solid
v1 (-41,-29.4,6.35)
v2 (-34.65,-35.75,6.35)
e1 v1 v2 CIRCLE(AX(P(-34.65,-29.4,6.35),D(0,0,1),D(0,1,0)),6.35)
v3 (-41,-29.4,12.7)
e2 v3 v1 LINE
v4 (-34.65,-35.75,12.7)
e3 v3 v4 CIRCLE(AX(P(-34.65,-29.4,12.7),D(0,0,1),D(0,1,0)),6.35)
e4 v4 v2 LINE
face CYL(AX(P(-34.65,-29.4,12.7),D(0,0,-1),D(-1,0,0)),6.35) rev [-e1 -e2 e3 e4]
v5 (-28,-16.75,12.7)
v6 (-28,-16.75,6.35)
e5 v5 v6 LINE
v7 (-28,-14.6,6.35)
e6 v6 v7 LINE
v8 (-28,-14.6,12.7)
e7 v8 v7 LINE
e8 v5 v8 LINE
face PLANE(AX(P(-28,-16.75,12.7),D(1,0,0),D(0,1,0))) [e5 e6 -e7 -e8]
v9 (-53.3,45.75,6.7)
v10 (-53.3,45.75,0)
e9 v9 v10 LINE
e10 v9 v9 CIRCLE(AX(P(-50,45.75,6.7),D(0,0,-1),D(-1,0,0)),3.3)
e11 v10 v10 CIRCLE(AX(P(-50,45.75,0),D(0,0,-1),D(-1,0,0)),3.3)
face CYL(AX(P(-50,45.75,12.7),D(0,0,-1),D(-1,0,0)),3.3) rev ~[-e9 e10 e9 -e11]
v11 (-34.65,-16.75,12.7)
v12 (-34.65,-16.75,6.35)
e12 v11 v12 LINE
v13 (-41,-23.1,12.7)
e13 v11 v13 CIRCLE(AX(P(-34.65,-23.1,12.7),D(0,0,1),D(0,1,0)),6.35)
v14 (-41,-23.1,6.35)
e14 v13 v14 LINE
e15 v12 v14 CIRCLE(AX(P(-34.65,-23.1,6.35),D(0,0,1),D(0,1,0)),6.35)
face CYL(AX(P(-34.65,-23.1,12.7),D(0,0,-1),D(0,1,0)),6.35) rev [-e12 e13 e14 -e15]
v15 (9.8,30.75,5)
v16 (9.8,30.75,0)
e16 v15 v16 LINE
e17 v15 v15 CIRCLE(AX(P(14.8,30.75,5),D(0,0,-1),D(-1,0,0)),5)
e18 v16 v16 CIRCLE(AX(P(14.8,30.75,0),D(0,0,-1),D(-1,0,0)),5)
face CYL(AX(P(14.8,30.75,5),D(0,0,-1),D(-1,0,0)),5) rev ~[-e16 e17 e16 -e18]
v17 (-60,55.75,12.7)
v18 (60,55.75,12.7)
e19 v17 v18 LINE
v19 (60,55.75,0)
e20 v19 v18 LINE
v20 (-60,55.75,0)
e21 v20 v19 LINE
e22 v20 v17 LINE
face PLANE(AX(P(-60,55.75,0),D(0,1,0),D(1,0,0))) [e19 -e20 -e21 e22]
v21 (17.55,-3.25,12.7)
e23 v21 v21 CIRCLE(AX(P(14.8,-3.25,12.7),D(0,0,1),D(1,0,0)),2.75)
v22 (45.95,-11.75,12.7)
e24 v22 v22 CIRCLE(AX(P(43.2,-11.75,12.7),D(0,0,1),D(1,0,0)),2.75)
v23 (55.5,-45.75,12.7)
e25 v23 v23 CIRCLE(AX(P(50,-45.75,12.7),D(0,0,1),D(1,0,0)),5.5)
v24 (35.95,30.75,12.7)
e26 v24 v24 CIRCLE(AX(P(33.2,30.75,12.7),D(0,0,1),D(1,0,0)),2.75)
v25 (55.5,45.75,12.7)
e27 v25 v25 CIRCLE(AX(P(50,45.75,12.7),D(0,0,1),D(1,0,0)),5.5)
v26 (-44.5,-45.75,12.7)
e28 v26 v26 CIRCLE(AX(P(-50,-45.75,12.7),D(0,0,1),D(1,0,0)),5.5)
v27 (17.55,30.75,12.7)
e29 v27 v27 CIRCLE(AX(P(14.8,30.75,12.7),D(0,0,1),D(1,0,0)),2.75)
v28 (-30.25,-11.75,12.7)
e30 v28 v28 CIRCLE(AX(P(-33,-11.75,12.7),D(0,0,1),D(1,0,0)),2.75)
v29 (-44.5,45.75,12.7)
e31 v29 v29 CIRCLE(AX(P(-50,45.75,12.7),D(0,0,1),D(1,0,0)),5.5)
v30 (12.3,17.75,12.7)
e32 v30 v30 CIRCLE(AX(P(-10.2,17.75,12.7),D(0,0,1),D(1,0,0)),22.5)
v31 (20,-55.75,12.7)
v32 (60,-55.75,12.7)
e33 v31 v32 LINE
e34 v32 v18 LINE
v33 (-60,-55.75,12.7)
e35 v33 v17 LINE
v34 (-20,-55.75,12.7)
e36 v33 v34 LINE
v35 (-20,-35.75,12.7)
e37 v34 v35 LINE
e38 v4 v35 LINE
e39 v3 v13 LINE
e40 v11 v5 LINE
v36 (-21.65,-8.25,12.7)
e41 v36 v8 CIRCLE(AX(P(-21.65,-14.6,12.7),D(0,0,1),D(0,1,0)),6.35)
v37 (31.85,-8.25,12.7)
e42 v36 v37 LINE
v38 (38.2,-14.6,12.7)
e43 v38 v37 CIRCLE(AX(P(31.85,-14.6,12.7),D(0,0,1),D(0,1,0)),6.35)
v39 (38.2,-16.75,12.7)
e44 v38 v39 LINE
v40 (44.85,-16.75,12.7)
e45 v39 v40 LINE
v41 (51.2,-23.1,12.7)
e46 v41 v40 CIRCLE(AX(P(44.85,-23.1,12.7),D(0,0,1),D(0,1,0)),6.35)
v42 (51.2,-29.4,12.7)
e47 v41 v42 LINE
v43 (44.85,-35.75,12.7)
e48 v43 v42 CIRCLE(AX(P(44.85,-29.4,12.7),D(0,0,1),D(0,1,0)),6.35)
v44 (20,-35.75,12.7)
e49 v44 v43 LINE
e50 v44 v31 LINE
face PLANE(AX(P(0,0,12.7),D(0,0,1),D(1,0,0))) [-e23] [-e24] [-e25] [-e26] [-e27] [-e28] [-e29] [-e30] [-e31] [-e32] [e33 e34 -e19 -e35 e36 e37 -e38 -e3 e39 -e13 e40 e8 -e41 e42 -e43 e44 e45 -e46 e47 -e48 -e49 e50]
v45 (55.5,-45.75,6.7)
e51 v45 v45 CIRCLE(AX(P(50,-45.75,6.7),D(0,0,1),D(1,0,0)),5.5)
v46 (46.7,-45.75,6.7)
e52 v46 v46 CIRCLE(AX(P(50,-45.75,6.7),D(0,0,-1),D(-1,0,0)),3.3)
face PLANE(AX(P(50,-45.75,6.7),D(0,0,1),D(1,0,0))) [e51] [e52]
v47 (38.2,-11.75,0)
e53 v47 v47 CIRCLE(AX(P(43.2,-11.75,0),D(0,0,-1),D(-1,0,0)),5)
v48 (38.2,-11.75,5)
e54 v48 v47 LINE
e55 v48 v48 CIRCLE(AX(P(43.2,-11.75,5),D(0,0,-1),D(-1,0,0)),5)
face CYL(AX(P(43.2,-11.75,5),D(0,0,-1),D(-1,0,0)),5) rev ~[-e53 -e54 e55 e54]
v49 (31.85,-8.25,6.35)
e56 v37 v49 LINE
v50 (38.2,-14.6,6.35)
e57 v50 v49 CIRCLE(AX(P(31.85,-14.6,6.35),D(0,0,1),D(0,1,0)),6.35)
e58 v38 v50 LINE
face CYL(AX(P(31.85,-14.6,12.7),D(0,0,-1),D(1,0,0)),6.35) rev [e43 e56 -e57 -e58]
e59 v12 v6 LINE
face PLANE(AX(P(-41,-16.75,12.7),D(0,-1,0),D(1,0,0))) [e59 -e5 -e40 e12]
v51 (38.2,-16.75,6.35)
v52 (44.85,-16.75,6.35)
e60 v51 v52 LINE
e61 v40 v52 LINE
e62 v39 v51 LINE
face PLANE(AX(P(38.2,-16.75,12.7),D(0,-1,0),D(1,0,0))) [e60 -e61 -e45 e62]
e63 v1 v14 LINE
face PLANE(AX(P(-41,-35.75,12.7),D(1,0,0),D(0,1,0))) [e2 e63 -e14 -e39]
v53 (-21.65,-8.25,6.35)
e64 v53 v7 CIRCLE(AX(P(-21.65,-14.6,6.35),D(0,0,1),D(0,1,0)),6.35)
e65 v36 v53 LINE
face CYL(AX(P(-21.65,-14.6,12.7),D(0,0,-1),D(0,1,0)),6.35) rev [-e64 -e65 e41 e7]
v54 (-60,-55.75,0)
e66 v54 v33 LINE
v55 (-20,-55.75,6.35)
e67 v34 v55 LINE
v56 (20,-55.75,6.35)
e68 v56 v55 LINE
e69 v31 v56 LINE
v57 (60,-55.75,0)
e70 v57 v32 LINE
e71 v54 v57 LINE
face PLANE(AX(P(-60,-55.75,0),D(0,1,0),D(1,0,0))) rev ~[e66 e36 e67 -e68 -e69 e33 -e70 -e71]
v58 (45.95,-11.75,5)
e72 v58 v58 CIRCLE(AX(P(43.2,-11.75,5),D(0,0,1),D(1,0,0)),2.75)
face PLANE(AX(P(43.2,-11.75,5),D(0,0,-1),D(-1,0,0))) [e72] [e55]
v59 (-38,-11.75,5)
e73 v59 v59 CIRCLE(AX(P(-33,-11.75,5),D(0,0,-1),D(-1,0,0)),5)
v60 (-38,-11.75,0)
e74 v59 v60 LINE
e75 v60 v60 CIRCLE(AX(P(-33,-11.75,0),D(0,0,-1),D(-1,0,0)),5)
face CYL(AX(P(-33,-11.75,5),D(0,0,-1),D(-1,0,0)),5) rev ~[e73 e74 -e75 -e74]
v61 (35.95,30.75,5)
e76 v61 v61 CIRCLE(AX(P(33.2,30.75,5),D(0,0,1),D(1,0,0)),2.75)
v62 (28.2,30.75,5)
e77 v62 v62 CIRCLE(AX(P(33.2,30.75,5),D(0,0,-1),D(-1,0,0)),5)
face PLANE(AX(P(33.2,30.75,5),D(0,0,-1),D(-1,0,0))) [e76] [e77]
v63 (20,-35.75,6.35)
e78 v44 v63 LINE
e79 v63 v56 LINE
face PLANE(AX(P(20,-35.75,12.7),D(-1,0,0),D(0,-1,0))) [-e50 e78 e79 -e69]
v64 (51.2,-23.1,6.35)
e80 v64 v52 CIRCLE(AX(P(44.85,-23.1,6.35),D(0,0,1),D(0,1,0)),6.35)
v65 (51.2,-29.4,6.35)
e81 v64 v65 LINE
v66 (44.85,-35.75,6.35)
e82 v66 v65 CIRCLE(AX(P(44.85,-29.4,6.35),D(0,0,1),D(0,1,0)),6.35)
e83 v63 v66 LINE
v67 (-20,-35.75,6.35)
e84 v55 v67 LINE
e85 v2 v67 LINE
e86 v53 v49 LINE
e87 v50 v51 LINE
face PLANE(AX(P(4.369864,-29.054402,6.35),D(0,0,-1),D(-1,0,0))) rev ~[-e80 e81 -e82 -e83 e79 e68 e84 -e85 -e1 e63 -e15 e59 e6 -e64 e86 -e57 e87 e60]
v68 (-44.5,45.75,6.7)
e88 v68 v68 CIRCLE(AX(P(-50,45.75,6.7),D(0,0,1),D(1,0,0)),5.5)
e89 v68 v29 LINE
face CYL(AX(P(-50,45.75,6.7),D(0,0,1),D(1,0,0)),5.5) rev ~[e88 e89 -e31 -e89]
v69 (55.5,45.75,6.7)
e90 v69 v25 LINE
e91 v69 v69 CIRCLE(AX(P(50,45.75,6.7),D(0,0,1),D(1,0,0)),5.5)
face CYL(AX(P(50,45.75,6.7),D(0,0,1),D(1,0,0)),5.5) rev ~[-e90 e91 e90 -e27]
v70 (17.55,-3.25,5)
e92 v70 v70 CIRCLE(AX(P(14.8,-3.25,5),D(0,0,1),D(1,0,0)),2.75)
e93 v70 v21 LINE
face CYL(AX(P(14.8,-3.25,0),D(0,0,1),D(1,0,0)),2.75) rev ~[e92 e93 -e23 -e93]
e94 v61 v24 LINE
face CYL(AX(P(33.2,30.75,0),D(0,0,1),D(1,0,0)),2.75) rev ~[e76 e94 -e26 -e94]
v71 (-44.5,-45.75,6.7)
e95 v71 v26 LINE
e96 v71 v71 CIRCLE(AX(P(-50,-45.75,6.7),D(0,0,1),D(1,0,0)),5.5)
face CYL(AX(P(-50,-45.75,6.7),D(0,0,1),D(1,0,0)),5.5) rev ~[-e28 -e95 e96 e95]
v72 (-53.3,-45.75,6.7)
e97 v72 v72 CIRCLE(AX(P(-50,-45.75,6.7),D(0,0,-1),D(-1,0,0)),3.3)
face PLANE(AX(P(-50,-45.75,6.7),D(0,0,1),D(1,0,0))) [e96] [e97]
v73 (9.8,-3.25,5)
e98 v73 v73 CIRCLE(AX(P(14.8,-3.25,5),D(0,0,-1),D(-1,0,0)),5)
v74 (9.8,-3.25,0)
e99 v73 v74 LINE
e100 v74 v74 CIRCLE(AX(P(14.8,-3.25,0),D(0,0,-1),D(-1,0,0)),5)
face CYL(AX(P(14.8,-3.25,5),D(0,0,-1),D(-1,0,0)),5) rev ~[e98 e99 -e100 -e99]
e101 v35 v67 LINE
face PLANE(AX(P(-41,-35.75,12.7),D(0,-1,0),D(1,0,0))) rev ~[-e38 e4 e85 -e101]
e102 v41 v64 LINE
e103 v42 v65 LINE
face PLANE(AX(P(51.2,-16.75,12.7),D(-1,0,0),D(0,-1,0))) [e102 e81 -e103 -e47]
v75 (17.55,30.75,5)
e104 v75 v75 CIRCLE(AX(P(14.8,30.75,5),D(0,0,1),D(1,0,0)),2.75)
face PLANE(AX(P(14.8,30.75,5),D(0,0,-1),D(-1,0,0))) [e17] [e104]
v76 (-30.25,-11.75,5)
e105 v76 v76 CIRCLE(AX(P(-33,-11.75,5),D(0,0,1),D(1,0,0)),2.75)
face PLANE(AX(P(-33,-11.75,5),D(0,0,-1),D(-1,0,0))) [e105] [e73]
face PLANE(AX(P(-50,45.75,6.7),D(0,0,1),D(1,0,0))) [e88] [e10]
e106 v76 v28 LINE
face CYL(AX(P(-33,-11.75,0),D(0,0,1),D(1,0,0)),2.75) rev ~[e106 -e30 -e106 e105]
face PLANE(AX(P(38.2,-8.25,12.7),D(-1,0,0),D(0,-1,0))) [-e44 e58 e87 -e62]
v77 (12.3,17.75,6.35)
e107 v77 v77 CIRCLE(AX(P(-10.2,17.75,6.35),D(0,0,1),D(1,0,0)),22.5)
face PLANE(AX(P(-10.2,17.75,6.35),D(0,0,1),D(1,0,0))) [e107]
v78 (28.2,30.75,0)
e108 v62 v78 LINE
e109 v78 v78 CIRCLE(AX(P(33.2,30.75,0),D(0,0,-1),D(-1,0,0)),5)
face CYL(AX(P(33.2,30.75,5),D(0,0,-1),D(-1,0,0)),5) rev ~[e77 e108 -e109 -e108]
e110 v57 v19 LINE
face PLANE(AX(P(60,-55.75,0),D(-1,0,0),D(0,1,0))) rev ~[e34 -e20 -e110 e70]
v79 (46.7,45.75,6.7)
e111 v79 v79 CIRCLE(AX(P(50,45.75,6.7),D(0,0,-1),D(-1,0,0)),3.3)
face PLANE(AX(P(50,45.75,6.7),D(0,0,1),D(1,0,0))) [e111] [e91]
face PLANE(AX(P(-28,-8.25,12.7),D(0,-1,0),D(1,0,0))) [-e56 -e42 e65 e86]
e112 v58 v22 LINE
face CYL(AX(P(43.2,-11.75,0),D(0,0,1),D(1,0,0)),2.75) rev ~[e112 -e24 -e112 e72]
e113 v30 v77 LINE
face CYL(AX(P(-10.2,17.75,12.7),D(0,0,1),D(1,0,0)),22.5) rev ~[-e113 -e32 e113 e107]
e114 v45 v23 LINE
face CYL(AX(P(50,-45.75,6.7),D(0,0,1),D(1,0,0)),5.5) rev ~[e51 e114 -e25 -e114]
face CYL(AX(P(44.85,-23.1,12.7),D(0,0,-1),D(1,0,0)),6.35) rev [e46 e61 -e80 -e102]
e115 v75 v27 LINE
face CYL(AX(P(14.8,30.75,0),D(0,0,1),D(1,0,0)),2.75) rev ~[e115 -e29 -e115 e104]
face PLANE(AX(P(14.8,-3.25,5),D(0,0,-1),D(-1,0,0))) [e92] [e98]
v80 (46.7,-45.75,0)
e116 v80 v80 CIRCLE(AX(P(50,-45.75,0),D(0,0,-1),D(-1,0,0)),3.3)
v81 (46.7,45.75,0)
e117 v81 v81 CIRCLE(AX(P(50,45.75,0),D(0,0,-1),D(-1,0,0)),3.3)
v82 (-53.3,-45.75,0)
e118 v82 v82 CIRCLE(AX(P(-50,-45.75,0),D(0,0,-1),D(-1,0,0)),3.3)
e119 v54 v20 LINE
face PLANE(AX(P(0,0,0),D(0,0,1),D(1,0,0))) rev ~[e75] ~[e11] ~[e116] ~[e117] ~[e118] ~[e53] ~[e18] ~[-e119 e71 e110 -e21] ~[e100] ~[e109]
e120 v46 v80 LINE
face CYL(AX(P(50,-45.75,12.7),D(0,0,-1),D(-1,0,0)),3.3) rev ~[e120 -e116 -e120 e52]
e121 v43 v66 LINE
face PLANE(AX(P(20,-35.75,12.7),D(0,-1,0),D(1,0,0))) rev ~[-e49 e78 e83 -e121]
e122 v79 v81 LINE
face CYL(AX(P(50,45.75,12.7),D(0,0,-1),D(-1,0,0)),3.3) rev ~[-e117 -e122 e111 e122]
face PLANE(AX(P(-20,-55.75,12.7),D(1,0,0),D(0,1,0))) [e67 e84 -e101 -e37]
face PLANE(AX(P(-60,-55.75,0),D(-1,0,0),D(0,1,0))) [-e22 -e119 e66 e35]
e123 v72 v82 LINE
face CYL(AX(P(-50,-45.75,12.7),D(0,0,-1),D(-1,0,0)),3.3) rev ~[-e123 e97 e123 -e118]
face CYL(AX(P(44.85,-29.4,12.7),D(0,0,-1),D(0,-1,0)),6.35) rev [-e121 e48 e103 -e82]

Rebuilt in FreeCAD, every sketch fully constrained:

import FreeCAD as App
import Part
import Sketcher

V = App.Vector


def edges_at(feature, points):
    """Names of the edges that pass closest to the given points."""
    edges = feature.Shape.Edges
    near = lambda p: min(range(len(edges)), key=lambda i: edges[i].distToShape(Part.Vertex(*p))[0])
    return sorted({f"Edge{near(p) + 1}" for p in points})


def add_polygon(sketch, points):
    """Adds a closed chain of lines whose ends are joined by coincident constraints."""
    first, n = sketch.GeometryCount, len(points)
    for a, b in zip(points, points[1:] + points[:1]):
        sketch.addGeometry(Part.LineSegment(App.Vector(*a, 0), App.Vector(*b, 0)), False)
    for i in range(n):
        sketch.addConstraint(Sketcher.Constraint("Coincident", first + i, 2, first + (i + 1) % n, 1))

doc = App.newDocument("Part")
body = doc.addObject("PartDesign::Body", "Body")

# Sketch on XY plane
sketch1 = doc.addObject("Sketcher::SketchObject", "Sketch")
body.addObject(sketch1)
sketch1.AttachmentSupport = (doc.XY_Plane, [""])
sketch1.MapMode = "FlatFace"
add_polygon(sketch1, [(-60, 55.75), (-60, -55.75), (60, -55.75), (60, 55.75)])  # lines 0-3
sketch1.addConstraint([
    Sketcher.Constraint("Vertical", 0),
    Sketcher.Constraint("Horizontal", 1),
    Sketcher.Constraint("Vertical", 2),
    Sketcher.Constraint("Horizontal", 3),
    Sketcher.Constraint("Symmetric", 0, 2, 2, 2, -1, 1),
    Sketcher.Constraint("DistanceX", 1, 1, 1, 2, 120.0),
    Sketcher.Constraint("DistanceY", 0, 2, 0, 1, 111.5),
])
pad1 = doc.addObject("PartDesign::Pad", "Pad")
body.addObject(pad1)
pad1.Profile = sketch1
pad1.Length = 12.7

# Sketch on XY plane
sketch2 = doc.addObject("Sketcher::SketchObject", "Sketch001")
body.addObject(sketch2)
sketch2.AttachmentSupport = (doc.XY_Plane, [""])
sketch2.MapMode = "FlatFace"
sketch2.AttachmentOffset = App.Placement(V(0, 0, 12.7), App.Rotation())
sketch2.addGeometry(Part.Circle(V(-10.2, 17.75, 0), V(0, 0, 1), 22.5), False)  # 0
add_polygon(sketch2, [(38.2, -16.75), (38.2, -8.25), (-28, -8.25), (-28, -16.75), (-41, -16.75), (-41, -35.75), (-20, -35.75), (-20, -55.75), (20, -55.75), (20, -35.75), (51.2, -35.75), (51.2, -16.75)])  # lines 1-12
sketch2.addConstraint([
    Sketcher.Constraint("Vertical", 1),
    Sketcher.Constraint("Horizontal", 2),
    Sketcher.Constraint("Vertical", 3),
    Sketcher.Constraint("Horizontal", 4),
    Sketcher.Constraint("Vertical", 5),
    Sketcher.Constraint("Horizontal", 6),
    Sketcher.Constraint("Vertical", 7),
    Sketcher.Constraint("Horizontal", 8),
    Sketcher.Constraint("Vertical", 9),
    Sketcher.Constraint("Horizontal", 10),
    Sketcher.Constraint("Vertical", 11),
    Sketcher.Constraint("Horizontal", 12),
    Sketcher.Constraint("Symmetric", 6, 2, 9, 2, -2),
    Sketcher.Constraint("Horizontal", 4, 2, 11, 2),
    Sketcher.Constraint("Equal", 4, 12),
    Sketcher.Constraint("Diameter", 0, 45.0),
    Sketcher.Constraint("DistanceX", 4, 2, 4, 1, 13.0),
    Sketcher.Constraint("DistanceX", 6, 1, 6, 2, 21.0),
    Sketcher.Constraint("DistanceX", 8, 1, 8, 2, 40.0),
    Sketcher.Constraint("DistanceY", 5, 2, 5, 1, 19.0),
    Sketcher.Constraint("DistanceY", 7, 2, 7, 1, 20.0),
    Sketcher.Constraint("DistanceX", 2, 2, 2, 1, 66.2),
    Sketcher.Constraint("DistanceY", 1, 1, 1, 2, 8.5),
    Sketcher.Constraint("DistanceY", 1, 2, 0, 3, 26.0),
    Sketcher.Constraint("DistanceX", 0, 3, -1, 1, 10.2),
    Sketcher.Constraint("DistanceY", -1, 1, 0, 3, 17.75),
])
pocket1 = doc.addObject("PartDesign::Pocket", "Pocket")
body.addObject(pocket1)
pocket1.Profile = sketch2
pocket1.Length = 6.35
doc.recompute()

fillet = doc.addObject("PartDesign::Fillet", "Fillet")
body.addObject(fillet)
fillet.Base = (pocket1, edges_at(pocket1, [
    (-28, -8.25, 9.525),
    (38.2, -8.25, 9.525),
    (51.2, -16.75, 9.525),
    (51.2, -35.75, 9.525),
    (-41, -35.75, 9.525),
    (-41, -16.75, 9.525),
]))
fillet.Radius = 6.35

# Sketch on XY plane
sketch3 = doc.addObject("Sketcher::SketchObject", "Sketch002")
body.addObject(sketch3)
sketch3.AttachmentSupport = (doc.XY_Plane, [""])
sketch3.MapMode = "FlatFace"
sketch3.addGeometry([
    Part.Circle(V(33.2, 30.75, 0), V(0, 0, 1), 2.75),  # 0
    Part.Circle(V(14.8, 30.75, 0), V(0, 0, 1), 2.75),  # 1
    Part.Circle(V(14.8, -3.25, 0), V(0, 0, 1), 2.75),  # 2
    Part.Circle(V(43.2, -11.75, 0), V(0, 0, 1), 2.75),  # 3
    Part.Circle(V(-33, -11.75, 0), V(0, 0, 1), 2.75),  # 4
], False)
sketch3.addConstraint([
    Sketcher.Constraint("Equal", 0, 1),
    Sketcher.Constraint("Equal", 1, 2),
    Sketcher.Constraint("Equal", 2, 3),
    Sketcher.Constraint("Equal", 3, 4),
    Sketcher.Constraint("Horizontal", 0, 3, 1, 3),
    Sketcher.Constraint("Horizontal", 3, 3, 4, 3),
    Sketcher.Constraint("Vertical", 1, 3, 2, 3),
    Sketcher.Constraint("Diameter", 0, 5.5),
    Sketcher.Constraint("DistanceX", 4, 3, -1, 1, 33.0),
    Sketcher.Constraint("DistanceY", 2, 3, 1, 3, 34.0),
    Sketcher.Constraint("DistanceX", 0, 3, 3, 3, 10.0),
    Sketcher.Constraint("DistanceX", -1, 1, 0, 3, 33.2),
    Sketcher.Constraint("DistanceX", -1, 1, 1, 3, 14.8),
    Sketcher.Constraint("DistanceY", 3, 3, 2, 3, 8.5),
    Sketcher.Constraint("DistanceY", -1, 1, 0, 3, 30.75),
])
doc.recompute()
hole = doc.addObject("PartDesign::Hole", "Hole")
body.addObject(hole)
hole.Profile = sketch3
hole.ThreadType = "None"
hole.Diameter = 5.5
hole.DepthType = "ThroughAll"
hole.HoleCutType = "Counterbore"
hole.HoleCutDiameter = 10
hole.HoleCutDepth = 5
hole.Reversed = True

# Sketch on XY plane
sketch4 = doc.addObject("Sketcher::SketchObject", "Sketch003")
body.addObject(sketch4)
sketch4.AttachmentSupport = (doc.XY_Plane, [""])
sketch4.MapMode = "FlatFace"
sketch4.AttachmentOffset = App.Placement(V(0, 0, 12.7), App.Rotation())
sketch4.addGeometry([
    Part.Circle(V(-50, 45.75, 0), V(0, 0, 1), 3.3),
    Part.Circle(V(50, 45.75, 0), V(0, 0, 1), 3.3),
    Part.Circle(V(50, -45.75, 0), V(0, 0, 1), 3.3),
    Part.Circle(V(-50, -45.75, 0), V(0, 0, 1), 3.3),
], False)
sketch4.addConstraint([
    Sketcher.Constraint("Equal", 0, 1),
    Sketcher.Constraint("Equal", 1, 2),
    Sketcher.Constraint("Equal", 2, 3),
    Sketcher.Constraint("Symmetric", 0, 3, 2, 3, -1, 1),
    Sketcher.Constraint("Symmetric", 1, 3, 3, 3, -1, 1),
    Sketcher.Constraint("Symmetric", 0, 3, 1, 3, -2),
    Sketcher.Constraint("Diameter", 0, 6.6),
    Sketcher.Constraint("DistanceX", 0, 3, -1, 1, 50.0),
    Sketcher.Constraint("DistanceY", 2, 3, 1, 3, 91.5),
])
doc.recompute()
hole2 = doc.addObject("PartDesign::Hole", "Hole001")
body.addObject(hole2)
hole2.Profile = sketch4
hole2.ThreadType = "None"
hole2.Diameter = 6.6
hole2.DepthType = "ThroughAll"
hole2.HoleCutType = "Counterbore"
hole2.HoleCutDiameter = 11
hole2.HoleCutDepth = 6

doc.recompute()
